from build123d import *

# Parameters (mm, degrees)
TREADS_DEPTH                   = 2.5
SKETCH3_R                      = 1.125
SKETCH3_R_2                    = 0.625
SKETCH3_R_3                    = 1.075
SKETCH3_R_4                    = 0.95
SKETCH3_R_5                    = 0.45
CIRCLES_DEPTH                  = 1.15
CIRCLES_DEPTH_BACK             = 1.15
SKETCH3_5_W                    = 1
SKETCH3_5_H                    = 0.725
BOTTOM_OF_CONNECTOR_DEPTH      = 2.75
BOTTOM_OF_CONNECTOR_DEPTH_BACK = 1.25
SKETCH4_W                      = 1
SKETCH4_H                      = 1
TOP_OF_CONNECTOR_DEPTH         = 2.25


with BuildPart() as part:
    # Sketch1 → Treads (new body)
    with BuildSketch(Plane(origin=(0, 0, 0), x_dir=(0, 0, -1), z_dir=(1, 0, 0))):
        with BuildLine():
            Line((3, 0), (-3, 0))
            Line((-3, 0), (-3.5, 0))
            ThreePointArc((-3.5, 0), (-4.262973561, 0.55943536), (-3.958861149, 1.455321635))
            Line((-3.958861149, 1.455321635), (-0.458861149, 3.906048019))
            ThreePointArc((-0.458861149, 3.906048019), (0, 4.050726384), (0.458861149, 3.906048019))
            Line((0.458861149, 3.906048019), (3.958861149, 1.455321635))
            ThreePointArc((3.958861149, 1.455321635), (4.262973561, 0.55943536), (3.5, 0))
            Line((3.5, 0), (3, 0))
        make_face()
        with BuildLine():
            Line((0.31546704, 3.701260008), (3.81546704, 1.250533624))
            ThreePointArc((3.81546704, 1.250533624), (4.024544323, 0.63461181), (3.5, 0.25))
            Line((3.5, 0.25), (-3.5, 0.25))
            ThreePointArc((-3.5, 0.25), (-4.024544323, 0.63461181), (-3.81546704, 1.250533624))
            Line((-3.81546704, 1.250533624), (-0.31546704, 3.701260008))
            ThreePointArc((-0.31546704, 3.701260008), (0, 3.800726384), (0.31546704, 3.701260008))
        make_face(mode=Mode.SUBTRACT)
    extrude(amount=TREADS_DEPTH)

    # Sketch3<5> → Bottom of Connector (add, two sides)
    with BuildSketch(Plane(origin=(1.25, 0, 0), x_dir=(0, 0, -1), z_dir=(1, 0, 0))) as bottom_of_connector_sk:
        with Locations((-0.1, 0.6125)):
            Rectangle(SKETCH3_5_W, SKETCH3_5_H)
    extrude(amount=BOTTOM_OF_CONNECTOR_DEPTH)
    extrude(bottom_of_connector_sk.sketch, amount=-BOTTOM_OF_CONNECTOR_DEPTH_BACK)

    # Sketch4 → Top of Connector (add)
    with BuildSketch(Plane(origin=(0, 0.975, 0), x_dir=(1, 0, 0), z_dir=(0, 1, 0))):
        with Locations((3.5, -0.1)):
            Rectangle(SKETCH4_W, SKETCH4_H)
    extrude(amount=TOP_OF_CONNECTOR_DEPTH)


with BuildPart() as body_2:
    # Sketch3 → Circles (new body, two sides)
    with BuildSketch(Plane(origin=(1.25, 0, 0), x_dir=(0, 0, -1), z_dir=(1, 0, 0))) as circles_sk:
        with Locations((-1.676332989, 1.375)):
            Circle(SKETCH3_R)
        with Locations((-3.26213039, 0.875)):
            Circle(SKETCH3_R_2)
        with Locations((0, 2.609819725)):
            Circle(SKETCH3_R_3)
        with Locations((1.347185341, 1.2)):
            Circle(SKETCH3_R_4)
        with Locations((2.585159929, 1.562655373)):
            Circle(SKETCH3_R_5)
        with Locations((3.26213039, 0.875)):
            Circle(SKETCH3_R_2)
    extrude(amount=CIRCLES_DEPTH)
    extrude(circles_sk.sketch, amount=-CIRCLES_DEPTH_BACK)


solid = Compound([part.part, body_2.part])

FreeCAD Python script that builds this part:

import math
import FreeCAD as App
import Part
import Sketcher

V = App.Vector
Q = App.Units.Quantity


def add_polygon(sketch, points):
    """Adds a closed chain of lines whose ends are joined by coincident constraints."""
    first, n = sketch.GeometryCount, len(points)
    for a, b in zip(points, points[1:] + points[:1]):
        sketch.addGeometry(Part.LineSegment(App.Vector(*a, 0), App.Vector(*b, 0)), False)
    for i in range(n):
        sketch.addConstraint(Sketcher.Constraint("Coincident", first + i, 2, first + (i + 1) % n, 1))

doc = App.newDocument("Part")
body = doc.addObject("PartDesign::Body", "Body")

sketch1 = body.newObject("Sketcher::SketchObject", "Sketch")
sketch1.AttachmentSupport = (doc.getObject("YZ_Plane"), [""])
sketch1.MapMode = "FlatFace"
sketch1.addGeometry([
    Part.ArcOfCircle(Part.Circle(V(0.8, 3.5, 0), V(0, 0, 1), 0.8), math.radians(35), math.radians(180)),
    Part.LineSegment(V(0, 3.5, 0), V(0, -3.5, 0)),
    Part.ArcOfCircle(Part.Circle(V(0.8, -3.5, 0), V(0, 0, 1), 0.8), math.radians(180), math.radians(325)),
    Part.LineSegment(V(1.5, -4, 0), V(3.9, -0.5, 0)),
    Part.ArcOfCircle(Part.Circle(V(3.3, 0, 0), V(0, 0, 1), 0.8), math.radians(-35), math.radians(35)),
    Part.LineSegment(V(3.9, 0.5, 0), V(1.5, 4, 0)),
    Part.LineSegment(V(3.7, -0.3, 0), V(1.3, -3.8, 0)),
    Part.ArcOfCircle(Part.Circle(V(0.8, -3.5, 0), V(0, 0, 1), 0.6), math.radians(180), math.radians(325)),
    Part.LineSegment(V(0.2, -3.5, 0), V(0.2, 3.5, 0)),
    Part.ArcOfCircle(Part.Circle(V(0.8, 3.5, 0), V(0, 0, 1), 0.6), math.radians(35), math.radians(180)),
    Part.LineSegment(V(1.3, 3.8, 0), V(3.7, 0.3, 0)),
    Part.ArcOfCircle(Part.Circle(V(3.3, 0, 0), V(0, 0, 1), 0.5), math.radians(-35), math.radians(35)),
], False)
sketch1.addConstraint([
    Sketcher.Constraint("Tangent", 0, 2, 1, 1),
    Sketcher.Constraint("Tangent", 1, 2, 2, 1),
    Sketcher.Constraint("Tangent", 2, 2, 3, 1),
    Sketcher.Constraint("Tangent", 3, 2, 4, 1),
    Sketcher.Constraint("Tangent", 4, 2, 5, 1),
    Sketcher.Constraint("Tangent", 5, 2, 0, 1),
    Sketcher.Constraint("Tangent", 6, 2, 7, 2),
    Sketcher.Constraint("Tangent", 7, 1, 8, 1),
    Sketcher.Constraint("Tangent", 8, 2, 9, 2),
    Sketcher.Constraint("Tangent", 9, 1, 10, 1),
    Sketcher.Constraint("Tangent", 10, 2, 11, 2),
    Sketcher.Constraint("Tangent", 11, 1, 6, 1),
    Sketcher.Constraint("Vertical", 1),
    Sketcher.Constraint("Vertical", 8),
    Sketcher.Constraint("Coincident", 7, 3, 2, 3),
    Sketcher.Constraint("Coincident", 9, 3, 0, 3),
    Sketcher.Constraint("Coincident", 11, 3, 4, 3),
    Sketcher.Constraint("Equal", 0, 2),
    Sketcher.Constraint("Equal", 2, 4),
    Sketcher.Constraint("Equal", 9, 11),
    Sketcher.Constraint("Symmetric", 0, 2, 1, 2, -1, 1),
    Sketcher.Constraint("PointOnObject", 4, 3, -1),
    Sketcher.Constraint("Radius", 0, 0.8),
    Sketcher.Constraint("DistanceY", 1, 2, 1, 1, 7.0),
    Sketcher.Constraint("Angle", 3, Q("55 deg")),
    Sketcher.Constraint("Radius", 7, 0.55),
])
pad1 = body.newObject("PartDesign::Pad", "Pad")
pad1.Profile = sketch1
pad1.Length = 2.5

sketch2 = body.newObject("Sketcher::SketchObject", "Sketch001")
sketch2.AttachmentSupport = (doc.getObject("YZ_Plane"), [""])
sketch2.MapMode = "FlatFace"
sketch2.AttachmentOffset = App.Placement(V(0, 0, 1.25), App.Rotation())
add_polygon(sketch2, [(1, 0.6), (0.2, 0.6), (0.2, -0.4), (1, -0.4)])
sketch2.addConstraint([
    Sketcher.Constraint("Horizontal", 0),
    Sketcher.Constraint("Vertical", 1),
    Sketcher.Constraint("Horizontal", 2),
    Sketcher.Constraint("Vertical", 3),
    Sketcher.Constraint("DistanceY", 1, 2, 1, 1, 1.0),
    Sketcher.Constraint("DistanceY", -1, 1, 0, 2, 0.6),
    Sketcher.Constraint("DistanceX", 0, 2, 0, 1, 0.725),
    Sketcher.Constraint("DistanceX", -1, 1, 0, 2, 0.25),
])
pad2 = body.newObject("PartDesign::Pad", "Pad001")
pad2.Profile = sketch2
pad2.Type = "TwoLengths"
pad2.Length = 2.75
pad2.Length2 = 1.25

sketch3 = body.newObject("Sketcher::SketchObject", "Sketch002")
sketch3.AttachmentSupport = (doc.getObject("XZ_Plane"), [""])
sketch3.MapMode = "FlatFace"
sketch3.AttachmentOffset = App.Placement(V(0, 0, -0.975), App.Rotation())
add_polygon(sketch3, [(3, -0.4), (3, 0.6), (4, 0.6), (4, -0.4)])
sketch3.addConstraint([
    Sketcher.Constraint("Vertical", 0),
    Sketcher.Constraint("Horizontal", 1),
    Sketcher.Constraint("Vertical", 2),
    Sketcher.Constraint("Horizontal", 3),
    Sketcher.Constraint("Equal", 3, 0),
    Sketcher.Constraint("DistanceX", 1, 1, 1, 2, 1.0),
    Sketcher.Constraint("DistanceX", -1, 1, 0, 2, 3.0),
    Sketcher.Constraint("DistanceY", -1, 1, 0, 2, 0.6),
])
pad3 = body.newObject("PartDesign::Pad", "Pad002")
pad3.Profile = sketch3
pad3.Length = 2.25
pad3.Reversed = True
body2 = doc.addObject("PartDesign::Body", "Body001")

sketch4 = body2.newObject("Sketcher::SketchObject", "Sketch003")
sketch4.AttachmentSupport = (doc.getObject("YZ_Plane001"), [""])
sketch4.MapMode = "FlatFace"
sketch4.AttachmentOffset = App.Placement(V(0, 0, 1.25), App.Rotation())
sketch4.addGeometry([
    Part.ArcOfCircle(Part.Circle(V(1.2, -1.35, 0), V(0, 0, 1), 0.95), math.radians(-58), math.radians(27)),
    Part.ArcOfCircle(Part.Circle(V(2.61, 0, 0), V(0, 0, 1), 1.07), math.radians(-122), math.radians(107)),
    Part.ArcOfCircle(Part.Circle(V(1.38, 1.68, 0), V(0, 0, 1), 1.12), math.radians(-35), math.radians(94)),
    Part.ArcOfCircle(Part.Circle(V(0.88, 3.26, 0), V(0, 0, 1), 0.62), math.radians(-48), math.radians(263)),
    Part.ArcOfCircle(Part.Circle(V(1.38, 1.68, 0), V(0, 0, 1), 1.12), math.radians(121), math.radians(288)),
    Part.ArcOfCircle(Part.Circle(V(2.61, 0, 0), V(0, 0, 1), 1.07), math.radians(146), math.radians(209)),
    Part.ArcOfCircle(Part.Circle(V(1.2, -1.35, 0), V(0, 0, 1), 0.95), math.radians(60), math.radians(271)),
    Part.ArcOfCircle(Part.Circle(V(1.56, -2.59, 0), V(0, 0, 1), 0.45), math.radians(140), math.radians(193)),
    Part.ArcOfCircle(Part.Circle(V(0.88, -3.26, 0), V(0, 0, 1), 0.62), math.radians(66), math.radians(383)),
    Part.ArcOfCircle(Part.Circle(V(1.56, -2.59, 0), V(0, 0, 1), 0.45), math.radians(-104), math.radians(72)),
], False)
sketch4.addConstraint([
    Sketcher.Constraint("Coincident", 0, 2, 1, 1),
    Sketcher.Constraint("Coincident", 1, 2, 2, 1),
    Sketcher.Constraint("Coincident", 2, 2, 3, 1),
    Sketcher.Constraint("Coincident", 3, 2, 4, 1),
    Sketcher.Constraint("Coincident", 4, 2, 5, 1),
    Sketcher.Constraint("Coincident", 5, 2, 6, 1),
    Sketcher.Constraint("Coincident", 6, 2, 7, 1),
    Sketcher.Constraint("Coincident", 7, 2, 8, 1),
    Sketcher.Constraint("Coincident", 8, 2, 9, 1),
    Sketcher.Constraint("Coincident", 9, 2, 0, 1),
    Sketcher.Constraint("Coincident", 4, 3, 2, 3),
    Sketcher.Constraint("Coincident", 5, 3, 1, 3),
    Sketcher.Constraint("Coincident", 6, 3, 0, 3),
    Sketcher.Constraint("Coincident", 9, 3, 7, 3),
    Sketcher.Constraint("Equal", 2, 4),
    Sketcher.Constraint("Equal", 1, 5),
    Sketcher.Constraint("Equal", 0, 6),
    Sketcher.Constraint("Equal", 3, 8),
    Sketcher.Constraint("Equal", 7, 9),
    Sketcher.Constraint("Symmetric", 3, 3, 8, 3, -1),
    Sketcher.Constraint("PointOnObject", 1, 3, -1),
    Sketcher.Constraint("Radius", 0, 0.95),
    Sketcher.Constraint("Radius", 7, 0.45),
    Sketcher.Constraint("Radius", 1, 1.075),
    Sketcher.Constraint("Radius", 2, 1.125),
    Sketcher.Constraint("Radius", 3, 0.625),
    Sketcher.Constraint("DistanceX", -1, 1, 0, 3, 1.2),
    Sketcher.Constraint("DistanceX", 3, 3, 2, 3, 0.5),
    Sketcher.Constraint("DistanceX", -1, 1, 2, 3, 1.375),
    Sketcher.Constraint("DistanceY", 0, 2, 1, 2, 1.943),
    Sketcher.Constraint("DistanceY", -1, 1, 4, 2, 0.606199),
    Sketcher.Constraint("DistanceX", -1, 1, 1, 3, 2.60982),
    Sketcher.Constraint("DistanceY", -1, 1, 3, 3, 3.26213),
    Sketcher.Constraint("DistanceY", 7, 3, -1, 1, 2.58516),
    Sketcher.Constraint("DistanceX", -1, 1, 7, 2, 1.124859),
])
pad4 = body2.newObject("PartDesign::Pad", "Pad003")
pad4.Profile = sketch4
pad4.Type = "TwoLengths"
pad4.Length = 1.15
pad4.Length2 = 1.15

doc.recompute()
